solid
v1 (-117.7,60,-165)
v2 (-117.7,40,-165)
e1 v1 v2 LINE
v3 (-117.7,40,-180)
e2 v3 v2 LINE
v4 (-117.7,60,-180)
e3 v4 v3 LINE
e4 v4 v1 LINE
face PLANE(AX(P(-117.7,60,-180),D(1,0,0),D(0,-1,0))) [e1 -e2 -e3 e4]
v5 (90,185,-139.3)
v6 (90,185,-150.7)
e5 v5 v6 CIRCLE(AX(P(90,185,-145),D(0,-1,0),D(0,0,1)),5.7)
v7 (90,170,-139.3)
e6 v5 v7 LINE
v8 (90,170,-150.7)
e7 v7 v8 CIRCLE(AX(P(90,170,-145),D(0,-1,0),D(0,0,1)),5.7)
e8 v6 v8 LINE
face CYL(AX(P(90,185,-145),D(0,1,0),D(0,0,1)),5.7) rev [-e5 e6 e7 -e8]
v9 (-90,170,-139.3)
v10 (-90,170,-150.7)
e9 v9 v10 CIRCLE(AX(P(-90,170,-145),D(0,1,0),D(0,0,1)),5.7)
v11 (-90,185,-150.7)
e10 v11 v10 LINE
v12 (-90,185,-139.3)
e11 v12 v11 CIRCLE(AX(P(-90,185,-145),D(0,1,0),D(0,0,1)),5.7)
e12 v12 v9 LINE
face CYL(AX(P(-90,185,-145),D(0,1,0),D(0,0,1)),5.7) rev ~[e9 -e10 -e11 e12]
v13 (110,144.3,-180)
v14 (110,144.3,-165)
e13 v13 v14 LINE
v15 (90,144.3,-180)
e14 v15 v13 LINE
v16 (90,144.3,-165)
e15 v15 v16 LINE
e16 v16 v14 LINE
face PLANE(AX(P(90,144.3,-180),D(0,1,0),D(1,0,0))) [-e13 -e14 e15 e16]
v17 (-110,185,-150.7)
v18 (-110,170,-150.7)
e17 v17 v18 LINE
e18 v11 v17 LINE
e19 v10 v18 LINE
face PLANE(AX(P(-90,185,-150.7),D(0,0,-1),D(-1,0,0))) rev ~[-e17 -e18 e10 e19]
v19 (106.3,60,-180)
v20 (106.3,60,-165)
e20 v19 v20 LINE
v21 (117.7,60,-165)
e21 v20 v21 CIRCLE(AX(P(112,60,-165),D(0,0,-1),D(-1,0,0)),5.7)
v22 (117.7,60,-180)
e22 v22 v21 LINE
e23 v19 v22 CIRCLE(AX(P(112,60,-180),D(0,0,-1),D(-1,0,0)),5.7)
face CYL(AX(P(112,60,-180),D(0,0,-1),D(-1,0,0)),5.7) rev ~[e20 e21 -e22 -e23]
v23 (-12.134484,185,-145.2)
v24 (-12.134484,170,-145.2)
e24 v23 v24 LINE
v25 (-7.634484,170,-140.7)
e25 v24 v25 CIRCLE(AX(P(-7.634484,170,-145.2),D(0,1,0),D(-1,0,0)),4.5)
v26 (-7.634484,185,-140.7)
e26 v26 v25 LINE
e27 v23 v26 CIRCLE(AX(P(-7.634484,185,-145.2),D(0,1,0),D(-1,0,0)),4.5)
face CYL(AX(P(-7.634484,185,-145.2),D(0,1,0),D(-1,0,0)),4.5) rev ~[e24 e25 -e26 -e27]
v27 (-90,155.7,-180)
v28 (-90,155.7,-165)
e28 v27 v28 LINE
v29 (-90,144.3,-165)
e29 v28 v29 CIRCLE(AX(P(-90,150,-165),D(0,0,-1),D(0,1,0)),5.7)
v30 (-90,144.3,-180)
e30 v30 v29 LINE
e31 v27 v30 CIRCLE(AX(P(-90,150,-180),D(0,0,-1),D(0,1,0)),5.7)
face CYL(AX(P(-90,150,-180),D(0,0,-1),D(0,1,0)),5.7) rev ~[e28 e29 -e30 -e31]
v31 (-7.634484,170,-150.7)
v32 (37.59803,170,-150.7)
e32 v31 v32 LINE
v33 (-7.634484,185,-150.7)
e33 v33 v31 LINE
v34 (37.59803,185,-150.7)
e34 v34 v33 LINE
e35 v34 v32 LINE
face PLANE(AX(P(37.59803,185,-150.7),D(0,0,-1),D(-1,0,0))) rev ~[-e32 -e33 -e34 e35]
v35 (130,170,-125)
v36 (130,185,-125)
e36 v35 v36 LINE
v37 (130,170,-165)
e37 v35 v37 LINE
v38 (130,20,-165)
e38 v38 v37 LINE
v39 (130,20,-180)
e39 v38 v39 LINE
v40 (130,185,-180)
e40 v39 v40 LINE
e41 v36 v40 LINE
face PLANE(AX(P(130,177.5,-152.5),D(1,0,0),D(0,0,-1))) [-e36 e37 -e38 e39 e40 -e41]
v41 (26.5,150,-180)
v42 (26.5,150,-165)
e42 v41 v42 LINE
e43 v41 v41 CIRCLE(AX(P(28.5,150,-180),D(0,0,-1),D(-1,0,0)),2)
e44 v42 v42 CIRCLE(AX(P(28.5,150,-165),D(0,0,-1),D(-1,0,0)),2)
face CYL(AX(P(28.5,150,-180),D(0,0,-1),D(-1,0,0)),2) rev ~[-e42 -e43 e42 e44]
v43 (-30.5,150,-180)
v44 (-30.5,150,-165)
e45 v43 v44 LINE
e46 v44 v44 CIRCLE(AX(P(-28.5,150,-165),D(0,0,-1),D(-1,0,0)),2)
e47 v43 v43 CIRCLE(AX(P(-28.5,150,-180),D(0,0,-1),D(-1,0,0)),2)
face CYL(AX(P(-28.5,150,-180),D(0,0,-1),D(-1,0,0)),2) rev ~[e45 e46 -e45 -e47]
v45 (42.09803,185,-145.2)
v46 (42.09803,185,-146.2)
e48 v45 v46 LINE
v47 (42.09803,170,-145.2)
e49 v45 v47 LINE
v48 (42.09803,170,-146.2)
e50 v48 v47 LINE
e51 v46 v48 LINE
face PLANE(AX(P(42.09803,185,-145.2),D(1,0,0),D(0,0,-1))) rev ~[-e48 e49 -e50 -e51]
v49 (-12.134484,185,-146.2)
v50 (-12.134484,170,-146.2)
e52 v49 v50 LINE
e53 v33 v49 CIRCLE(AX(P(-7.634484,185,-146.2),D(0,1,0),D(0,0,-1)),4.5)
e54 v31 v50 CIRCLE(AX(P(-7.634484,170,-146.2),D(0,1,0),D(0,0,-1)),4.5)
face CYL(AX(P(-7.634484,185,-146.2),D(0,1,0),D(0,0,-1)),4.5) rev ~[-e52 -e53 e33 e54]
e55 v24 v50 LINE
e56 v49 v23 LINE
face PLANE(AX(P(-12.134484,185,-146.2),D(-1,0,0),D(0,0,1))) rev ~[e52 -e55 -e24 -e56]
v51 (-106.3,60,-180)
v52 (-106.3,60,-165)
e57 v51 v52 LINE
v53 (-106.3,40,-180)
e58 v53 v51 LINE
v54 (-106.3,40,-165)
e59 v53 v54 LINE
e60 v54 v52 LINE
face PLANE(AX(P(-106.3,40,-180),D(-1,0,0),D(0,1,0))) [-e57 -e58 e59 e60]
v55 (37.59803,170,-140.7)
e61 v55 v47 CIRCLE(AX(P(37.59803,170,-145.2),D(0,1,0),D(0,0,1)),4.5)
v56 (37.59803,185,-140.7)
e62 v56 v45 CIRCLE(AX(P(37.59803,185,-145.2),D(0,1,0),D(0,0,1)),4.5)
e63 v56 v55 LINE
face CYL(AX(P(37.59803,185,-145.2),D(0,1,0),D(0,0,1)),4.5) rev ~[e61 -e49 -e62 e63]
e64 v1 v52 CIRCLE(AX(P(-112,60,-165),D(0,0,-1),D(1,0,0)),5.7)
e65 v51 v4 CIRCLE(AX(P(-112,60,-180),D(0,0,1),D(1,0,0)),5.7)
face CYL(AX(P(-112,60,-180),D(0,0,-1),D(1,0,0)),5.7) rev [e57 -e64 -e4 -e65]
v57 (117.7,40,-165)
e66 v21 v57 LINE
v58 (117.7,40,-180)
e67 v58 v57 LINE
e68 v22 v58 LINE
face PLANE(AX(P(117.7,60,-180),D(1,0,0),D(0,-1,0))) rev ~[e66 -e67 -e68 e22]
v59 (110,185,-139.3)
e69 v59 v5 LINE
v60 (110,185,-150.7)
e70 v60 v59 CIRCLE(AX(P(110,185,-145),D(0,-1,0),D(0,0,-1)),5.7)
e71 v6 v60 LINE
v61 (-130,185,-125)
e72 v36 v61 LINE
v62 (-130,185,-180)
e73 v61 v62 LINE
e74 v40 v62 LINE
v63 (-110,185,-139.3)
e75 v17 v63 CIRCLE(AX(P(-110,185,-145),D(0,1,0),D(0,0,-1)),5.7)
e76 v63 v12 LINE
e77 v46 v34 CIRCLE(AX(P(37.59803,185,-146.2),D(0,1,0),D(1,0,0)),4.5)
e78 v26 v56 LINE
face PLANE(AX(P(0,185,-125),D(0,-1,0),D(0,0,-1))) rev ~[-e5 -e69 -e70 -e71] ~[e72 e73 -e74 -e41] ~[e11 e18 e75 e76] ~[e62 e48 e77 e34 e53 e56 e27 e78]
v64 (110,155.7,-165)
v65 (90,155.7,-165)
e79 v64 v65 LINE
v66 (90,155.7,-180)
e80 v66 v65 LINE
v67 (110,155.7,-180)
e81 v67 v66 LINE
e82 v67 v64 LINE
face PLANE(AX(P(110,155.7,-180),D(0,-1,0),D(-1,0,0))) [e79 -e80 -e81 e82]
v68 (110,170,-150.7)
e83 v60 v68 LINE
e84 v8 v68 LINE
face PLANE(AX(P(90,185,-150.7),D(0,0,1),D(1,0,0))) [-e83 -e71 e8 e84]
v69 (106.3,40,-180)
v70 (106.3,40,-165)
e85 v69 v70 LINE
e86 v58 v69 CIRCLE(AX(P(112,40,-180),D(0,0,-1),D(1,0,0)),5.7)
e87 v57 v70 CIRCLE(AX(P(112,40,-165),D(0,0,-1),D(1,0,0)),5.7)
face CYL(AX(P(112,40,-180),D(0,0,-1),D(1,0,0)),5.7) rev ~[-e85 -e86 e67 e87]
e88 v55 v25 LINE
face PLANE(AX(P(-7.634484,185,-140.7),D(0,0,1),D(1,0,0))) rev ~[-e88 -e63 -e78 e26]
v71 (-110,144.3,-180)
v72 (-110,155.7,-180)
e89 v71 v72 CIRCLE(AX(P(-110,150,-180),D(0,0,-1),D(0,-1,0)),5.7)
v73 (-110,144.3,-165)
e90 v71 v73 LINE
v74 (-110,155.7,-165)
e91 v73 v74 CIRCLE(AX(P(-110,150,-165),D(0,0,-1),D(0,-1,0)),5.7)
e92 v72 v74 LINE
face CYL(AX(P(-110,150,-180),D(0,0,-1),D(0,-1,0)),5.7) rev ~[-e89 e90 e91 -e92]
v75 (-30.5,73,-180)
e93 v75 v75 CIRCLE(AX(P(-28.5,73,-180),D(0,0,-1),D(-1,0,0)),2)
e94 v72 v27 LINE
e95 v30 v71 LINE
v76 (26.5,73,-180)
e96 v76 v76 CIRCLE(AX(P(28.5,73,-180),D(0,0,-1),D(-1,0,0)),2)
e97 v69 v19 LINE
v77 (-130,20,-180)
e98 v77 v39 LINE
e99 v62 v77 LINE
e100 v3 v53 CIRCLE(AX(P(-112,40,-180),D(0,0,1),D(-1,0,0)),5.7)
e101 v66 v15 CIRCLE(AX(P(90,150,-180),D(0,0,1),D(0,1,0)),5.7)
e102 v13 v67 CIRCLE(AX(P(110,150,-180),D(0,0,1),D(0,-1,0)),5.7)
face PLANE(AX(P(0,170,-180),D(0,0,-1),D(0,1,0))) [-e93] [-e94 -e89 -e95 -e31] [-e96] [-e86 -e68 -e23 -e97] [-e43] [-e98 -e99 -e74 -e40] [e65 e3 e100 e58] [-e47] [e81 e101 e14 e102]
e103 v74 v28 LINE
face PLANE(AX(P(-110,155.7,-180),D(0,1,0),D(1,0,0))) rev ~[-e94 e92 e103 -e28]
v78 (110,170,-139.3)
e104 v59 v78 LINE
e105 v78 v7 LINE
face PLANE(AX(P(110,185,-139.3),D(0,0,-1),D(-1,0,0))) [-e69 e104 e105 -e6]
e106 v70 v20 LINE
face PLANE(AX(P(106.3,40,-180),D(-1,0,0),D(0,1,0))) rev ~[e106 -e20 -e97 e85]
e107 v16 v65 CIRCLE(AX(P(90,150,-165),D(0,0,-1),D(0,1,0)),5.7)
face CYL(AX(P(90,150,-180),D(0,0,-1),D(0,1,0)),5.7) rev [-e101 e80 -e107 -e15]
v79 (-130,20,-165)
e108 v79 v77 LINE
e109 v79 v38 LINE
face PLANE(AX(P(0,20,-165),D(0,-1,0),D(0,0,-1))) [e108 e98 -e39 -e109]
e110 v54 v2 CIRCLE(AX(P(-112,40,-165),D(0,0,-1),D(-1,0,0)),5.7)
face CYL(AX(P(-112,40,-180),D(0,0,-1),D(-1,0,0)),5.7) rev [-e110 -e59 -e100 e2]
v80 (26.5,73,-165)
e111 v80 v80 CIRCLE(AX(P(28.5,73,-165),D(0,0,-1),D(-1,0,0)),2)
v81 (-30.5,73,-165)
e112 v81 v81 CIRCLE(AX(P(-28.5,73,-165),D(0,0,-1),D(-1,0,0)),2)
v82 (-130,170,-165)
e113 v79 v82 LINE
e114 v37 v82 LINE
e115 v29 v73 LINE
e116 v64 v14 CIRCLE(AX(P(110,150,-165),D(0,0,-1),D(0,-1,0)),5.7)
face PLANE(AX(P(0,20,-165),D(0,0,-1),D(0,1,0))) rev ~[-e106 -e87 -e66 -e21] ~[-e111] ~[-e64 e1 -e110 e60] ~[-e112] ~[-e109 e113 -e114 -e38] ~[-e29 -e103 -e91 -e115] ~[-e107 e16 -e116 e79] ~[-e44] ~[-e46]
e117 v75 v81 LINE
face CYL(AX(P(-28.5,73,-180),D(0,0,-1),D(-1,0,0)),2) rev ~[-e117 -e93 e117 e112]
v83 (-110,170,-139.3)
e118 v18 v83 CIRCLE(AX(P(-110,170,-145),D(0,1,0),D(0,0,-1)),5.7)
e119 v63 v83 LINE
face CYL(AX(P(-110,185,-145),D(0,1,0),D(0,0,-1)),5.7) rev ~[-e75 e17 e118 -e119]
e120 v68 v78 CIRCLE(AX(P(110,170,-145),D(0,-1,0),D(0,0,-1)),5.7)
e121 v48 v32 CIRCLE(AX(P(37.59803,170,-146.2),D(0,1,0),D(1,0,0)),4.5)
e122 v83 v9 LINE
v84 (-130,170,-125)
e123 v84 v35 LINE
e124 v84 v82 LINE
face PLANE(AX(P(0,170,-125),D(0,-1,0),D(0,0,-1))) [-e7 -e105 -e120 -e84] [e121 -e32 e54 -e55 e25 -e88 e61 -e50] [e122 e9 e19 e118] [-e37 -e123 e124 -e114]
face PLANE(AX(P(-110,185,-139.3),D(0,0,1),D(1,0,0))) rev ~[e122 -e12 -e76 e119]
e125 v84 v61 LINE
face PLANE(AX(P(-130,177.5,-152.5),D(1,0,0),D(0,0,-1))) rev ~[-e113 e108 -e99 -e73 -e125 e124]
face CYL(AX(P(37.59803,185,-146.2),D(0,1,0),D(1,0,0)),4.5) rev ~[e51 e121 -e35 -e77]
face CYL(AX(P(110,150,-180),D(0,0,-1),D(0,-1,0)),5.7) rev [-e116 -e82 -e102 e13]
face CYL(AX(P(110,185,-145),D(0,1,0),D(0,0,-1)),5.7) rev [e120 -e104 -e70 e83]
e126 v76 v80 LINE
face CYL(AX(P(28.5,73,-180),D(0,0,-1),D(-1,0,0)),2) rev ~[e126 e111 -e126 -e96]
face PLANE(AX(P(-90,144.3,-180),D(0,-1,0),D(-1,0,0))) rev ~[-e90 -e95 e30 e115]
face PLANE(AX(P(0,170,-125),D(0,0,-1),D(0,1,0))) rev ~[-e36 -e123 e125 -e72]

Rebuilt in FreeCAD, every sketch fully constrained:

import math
import FreeCAD as App
import Part
import Sketcher

V = App.Vector


def add_polygon(sketch, points):
    """Adds a closed chain of lines whose ends are joined by coincident constraints."""
    first, n = sketch.GeometryCount, len(points)
    for a, b in zip(points, points[1:] + points[:1]):
        sketch.addGeometry(Part.LineSegment(App.Vector(*a, 0), App.Vector(*b, 0)), False)
    for i in range(n):
        sketch.addConstraint(Sketcher.Constraint("Coincident", first + i, 2, first + (i + 1) % n, 1))

doc = App.newDocument("Part")
body = doc.addObject("PartDesign::Body", "Body")

# Sketch on YZ plane
sketch1 = body.newObject("Sketcher::SketchObject", "Sketch")
sketch1.AttachmentSupport = (doc.getObject("YZ_Plane"), [""])
sketch1.MapMode = "FlatFace"
add_polygon(sketch1, [(170, -165), (20, -165), (20, -180), (170, -180)])  # lines 0-3
sketch1.addConstraint([
    Sketcher.Constraint("Horizontal", 0),
    Sketcher.Constraint("Vertical", 1),
    Sketcher.Constraint("Horizontal", 2),
    Sketcher.Constraint("Vertical", 3),
    Sketcher.Constraint("DistanceX", 0, 2, 0, 1, 150.0),
    Sketcher.Constraint("DistanceY", 1, 2, 1, 1, 15.0),
    Sketcher.Constraint("DistanceX", -1, 1, 0, 2, 20.0),
    Sketcher.Constraint("DistanceY", 0, 2, -1, 1, 165.0),
])
pad1 = body.newObject("PartDesign::Pad", "Pad")
pad1.Profile = sketch1
pad1.Length = 260
pad1.Midplane = True

# Sketch on XY plane
sketch2 = body.newObject("Sketcher::SketchObject", "Sketch001")
sketch2.AttachmentSupport = (doc.getObject("XY_Plane"), [""])
sketch2.MapMode = "FlatFace"
sketch2.AttachmentOffset = App.Placement(V(0, 0, -180), App.Rotation())
sketch2.addGeometry([
    Part.Circle(V(28.5, 150, 0), V(0, 0, 1), 2),  # 0
    Part.Circle(V(-28.5, 150, 0), V(0, 0, 1), 2),  # 1
    Part.Circle(V(-28.5, 73, 0), V(0, 0, 1), 2),  # 2
    Part.Circle(V(28.5, 73, 0), V(0, 0, 1), 2),  # 3
    Part.LineSegment(V(90, 155.7, 0), V(110, 155.7, 0)),  # 4
    Part.ArcOfCircle(Part.Circle(V(110, 150, 0), V(0, 0, 1), 5.7), math.radians(-90), math.radians(90)),  # 5
    Part.LineSegment(V(110, 144.3, 0), V(90, 144.3, 0)),  # 6
    Part.ArcOfCircle(Part.Circle(V(90, 150, 0), V(0, 0, 1), 5.7), math.radians(90), math.radians(270)),  # 7
    Part.LineSegment(V(-90, 144.3, 0), V(-110, 144.3, 0)),  # 8
    Part.ArcOfCircle(Part.Circle(V(-110, 150, 0), V(0, 0, 1), 5.7), math.radians(90), math.radians(270)),  # 9
    Part.LineSegment(V(-110, 155.7, 0), V(-90, 155.7, 0)),  # 10
    Part.ArcOfCircle(Part.Circle(V(-90, 150, 0), V(0, 0, 1), 5.7), math.radians(-90), math.radians(90)),  # 11
    Part.LineSegment(V(117.7, 60, 0), V(117.7, 40, 0)),  # 12
    Part.ArcOfCircle(Part.Circle(V(112, 40, 0), V(0, 0, 1), 5.7), math.radians(180), math.radians(360)),  # 13
    Part.LineSegment(V(106.3, 40, 0), V(106.3, 60, 0)),  # 14
    Part.ArcOfCircle(Part.Circle(V(112, 60, 0), V(0, 0, 1), 5.7), math.radians(0), math.radians(180)),  # 15
    Part.LineSegment(V(-106.3, 60, 0), V(-106.3, 40, 0)),  # 16
    Part.ArcOfCircle(Part.Circle(V(-112, 40, 0), V(0, 0, 1), 5.7), math.radians(180), math.radians(360)),  # 17
    Part.LineSegment(V(-117.7, 40, 0), V(-117.7, 60, 0)),  # 18
    Part.ArcOfCircle(Part.Circle(V(-112, 60, 0), V(0, 0, 1), 5.7), math.radians(0), math.radians(180)),  # 19
], False)
sketch2.addConstraint([
    Sketcher.Constraint("Tangent", 4, 2, 5, 2),
    Sketcher.Constraint("Tangent", 5, 1, 6, 1),
    Sketcher.Constraint("Tangent", 6, 2, 7, 2),
    Sketcher.Constraint("Tangent", 7, 1, 4, 1),
    Sketcher.Constraint("Tangent", 8, 2, 9, 2),
    Sketcher.Constraint("Tangent", 9, 1, 10, 1),
    Sketcher.Constraint("Tangent", 10, 2, 11, 2),
    Sketcher.Constraint("Tangent", 11, 1, 8, 1),
    Sketcher.Constraint("Tangent", 12, 2, 13, 2),
    Sketcher.Constraint("Tangent", 13, 1, 14, 1),
    Sketcher.Constraint("Tangent", 14, 2, 15, 2),
    Sketcher.Constraint("Tangent", 15, 1, 12, 1),
    Sketcher.Constraint("Tangent", 16, 2, 17, 2),
    Sketcher.Constraint("Tangent", 17, 1, 18, 1),
    Sketcher.Constraint("Tangent", 18, 2, 19, 2),
    Sketcher.Constraint("Tangent", 19, 1, 16, 1),
    Sketcher.Constraint("Horizontal", 4),
    Sketcher.Constraint("Horizontal", 6),
    Sketcher.Constraint("Horizontal", 8),
    Sketcher.Constraint("Horizontal", 10),
    Sketcher.Constraint("Vertical", 12),
    Sketcher.Constraint("Vertical", 14),
    Sketcher.Constraint("Vertical", 16),
    Sketcher.Constraint("Vertical", 18),
    Sketcher.Constraint("Equal", 0, 1),
    Sketcher.Constraint("Equal", 1, 2),
    Sketcher.Constraint("Equal", 2, 3),
    Sketcher.Constraint("Equal", 7, 9),
    Sketcher.Constraint("Equal", 11, 13),
    Sketcher.Constraint("Equal", 15, 17),
    Sketcher.Constraint("Symmetric", 0, 3, 1, 3, -2),
    Sketcher.Constraint("Symmetric", 2, 3, 3, 3, -2),
    Sketcher.Constraint("Symmetric", 5, 3, 9, 3, -2),
    Sketcher.Constraint("Symmetric", 13, 3, 17, 3, -2),
    Sketcher.Constraint("Horizontal", 1, 3, 5, 3),
    Sketcher.Constraint("Horizontal", 15, 3, 19, 3),
    Sketcher.Constraint("Vertical", 1, 3, 2, 3),
    Sketcher.Constraint("Equal", 6, 8),
    Sketcher.Constraint("Equal", 10, 12),
    Sketcher.Constraint("Diameter", 0, 4.0),
    Sketcher.Constraint("Radius", 5, 5.7),
    Sketcher.Constraint("DistanceX", 4, 1, 4, 2, 20.0),
    Sketcher.Constraint("DistanceY", -1, 1, 0, 3, 150.0),
    Sketcher.Constraint("DistanceY", -1, 1, 2, 3, 73.0),
    Sketcher.Constraint("DistanceX", -1, 1, 5, 3, 110.0),
    Sketcher.Constraint("DistanceX", -1, 1, 13, 3, 112.0),
    Sketcher.Constraint("DistanceY", -1, 1, 13, 3, 40.0),
    Sketcher.Constraint("DistanceX", 1, 3, 0, 3, 57.0),
])
pocket1 = body.newObject("PartDesign::Pocket", "Pocket")
pocket1.Profile = sketch2
pocket1.Type = "ThroughAll"
pocket1.Reversed = True

# Sketch on YZ plane
sketch3 = body.newObject("Sketcher::SketchObject", "Sketch002")
sketch3.AttachmentSupport = (doc.getObject("YZ_Plane"), [""])
sketch3.MapMode = "FlatFace"
add_polygon(sketch3, [(185, -125), (170, -125), (170, -180), (185, -180)])  # lines 0-3
sketch3.addConstraint([
    Sketcher.Constraint("Horizontal", 0),
    Sketcher.Constraint("Vertical", 1),
    Sketcher.Constraint("Horizontal", 2),
    Sketcher.Constraint("Vertical", 3),
    Sketcher.Constraint("DistanceX", 0, 2, 0, 1, 15.0),
    Sketcher.Constraint("DistanceY", 1, 2, 1, 1, 55.0),
    Sketcher.Constraint("DistanceX", -1, 1, 0, 2, 170.0),
    Sketcher.Constraint("DistanceY", 0, 2, -1, 1, 125.0),
])
pad2 = body.newObject("PartDesign::Pad", "Pad001")
pad2.Profile = sketch3
pad2.Length = 260
pad2.Midplane = True

# Sketch on XZ plane
sketch4 = body.newObject("Sketcher::SketchObject", "Sketch003")
sketch4.AttachmentSupport = (doc.getObject("XZ_Plane"), [""])
sketch4.MapMode = "FlatFace"
sketch4.AttachmentOffset = App.Placement(V(0, 0, -185), App.Rotation())
sketch4.addGeometry([
    Part.LineSegment(V(-110, -139.3, 0), V(-90, -139.3, 0)),  # 0
    Part.ArcOfCircle(Part.Circle(V(-90, -145, 0), V(0, 0, 1), 5.7), math.radians(-90), math.radians(90)),  # 1
    Part.LineSegment(V(-90, -150.7, 0), V(-110, -150.7, 0)),  # 2
    Part.ArcOfCircle(Part.Circle(V(-110, -145, 0), V(0, 0, 1), 5.7), math.radians(90), math.radians(270)),  # 3
    Part.LineSegment(V(90, -139.3, 0), V(110, -139.3, 0)),  # 4
    Part.ArcOfCircle(Part.Circle(V(110, -145, 0), V(0, 0, 1), 5.7), math.radians(-90), math.radians(90)),  # 5
    Part.LineSegment(V(110, -150.7, 0), V(90, -150.7, 0)),  # 6
    Part.ArcOfCircle(Part.Circle(V(90, -145, 0), V(0, 0, 1), 5.7), math.radians(90), math.radians(270)),  # 7
], False)
sketch4.addConstraint([
    Sketcher.Constraint("Tangent", 0, 2, 1, 2),
    Sketcher.Constraint("Tangent", 1, 1, 2, 1),
    Sketcher.Constraint("Tangent", 2, 2, 3, 2),
    Sketcher.Constraint("Tangent", 3, 1, 0, 1),
    Sketcher.Constraint("Tangent", 4, 2, 5, 2),
    Sketcher.Constraint("Tangent", 5, 1, 6, 1),
    Sketcher.Constraint("Tangent", 6, 2, 7, 2),
    Sketcher.Constraint("Tangent", 7, 1, 4, 1),
    Sketcher.Constraint("Horizontal", 0),
    Sketcher.Constraint("Horizontal", 2),
    Sketcher.Constraint("Horizontal", 4),
    Sketcher.Constraint("Horizontal", 6),
    Sketcher.Constraint("Equal", 3, 5),
    Sketcher.Constraint("Symmetric", 3, 3, 5, 3, -2),
    Sketcher.Constraint("Equal", 2, 4),
    Sketcher.Constraint("Radius", 1, 5.7),
    Sketcher.Constraint("DistanceX", 0, 1, 0, 2, 20.0),
    Sketcher.Constraint("DistanceX", 1, 3, -1, 1, 90.0),
    Sketcher.Constraint("DistanceY", 1, 3, -1, 1, 145.0),
])
pocket2 = body.newObject("PartDesign::Pocket", "Pocket001")
pocket2.Profile = sketch4
pocket2.Length = 15
pocket2.Reversed = True

# Sketch on XZ plane
sketch5 = body.newObject("Sketcher::SketchObject", "Sketch004")
sketch5.AttachmentSupport = (doc.getObject("XZ_Plane"), [""])
sketch5.MapMode = "FlatFace"
sketch5.AttachmentOffset = App.Placement(V(0, 0, -185), App.Rotation())
sketch5.addGeometry([
    Part.LineSegment(V(42.09803, -145.2, 0), V(42.09803, -146.2, 0)),  # 0
    Part.ArcOfCircle(Part.Circle(V(37.59803, -146.2, 0), V(0, 0, 1), 4.5), math.radians(-90), math.radians(0)),  # 1
    Part.LineSegment(V(37.59803, -150.7, 0), V(-7.634484, -150.7, 0)),  # 2
    Part.ArcOfCircle(Part.Circle(V(-7.634484, -146.2, 0), V(0, 0, 1), 4.5), math.radians(-180), math.radians(-90)),  # 3
    Part.LineSegment(V(-12.134484, -146.2, 0), V(-12.134484, -145.2, 0)),  # 4
    Part.ArcOfCircle(Part.Circle(V(-7.634484, -145.2, 0), V(0, 0, 1), 4.5), math.radians(90), math.radians(180)),  # 5
    Part.LineSegment(V(-7.634484, -140.7, 0), V(37.59803, -140.7, 0)),  # 6
    Part.ArcOfCircle(Part.Circle(V(37.59803, -145.2, 0), V(0, 0, 1), 4.5), math.radians(0), math.radians(90)),  # 7
], False)
sketch5.addConstraint([
    Sketcher.Constraint("Tangent", 0, 2, 1, 2),
    Sketcher.Constraint("Tangent", 1, 1, 2, 1),
    Sketcher.Constraint("Tangent", 2, 2, 3, 2),
    Sketcher.Constraint("Tangent", 3, 1, 4, 1),
    Sketcher.Constraint("Tangent", 4, 2, 5, 2),
    Sketcher.Constraint("Tangent", 5, 1, 6, 1),
    Sketcher.Constraint("Tangent", 6, 2, 7, 2),
    Sketcher.Constraint("Tangent", 7, 1, 0, 1),
    Sketcher.Constraint("Vertical", 0),
    Sketcher.Constraint("Horizontal", 2),
    Sketcher.Constraint("Vertical", 4),
    Sketcher.Constraint("Horizontal", 6),
    Sketcher.Constraint("Equal", 1, 3),
    Sketcher.Constraint("Equal", 3, 5),
    Sketcher.Constraint("Equal", 5, 7),
    Sketcher.Constraint("Radius", 1, 4.5),
    Sketcher.Constraint("DistanceY", 0, 2, 0, 1, 1.0),
    Sketcher.Constraint("DistanceY", 1, 3, -1, 1, 146.2),
    Sketcher.Constraint("DistanceX", 2, 2, 2, 1, 45.232514),
    Sketcher.Constraint("DistanceX", -1, 1, 1, 3, 37.59803),
])
pocket3 = body.newObject("PartDesign::Pocket", "Pocket002")
pocket3.Profile = sketch5
pocket3.Type = "ThroughAll"
pocket3.Reversed = True

doc.recompute()
